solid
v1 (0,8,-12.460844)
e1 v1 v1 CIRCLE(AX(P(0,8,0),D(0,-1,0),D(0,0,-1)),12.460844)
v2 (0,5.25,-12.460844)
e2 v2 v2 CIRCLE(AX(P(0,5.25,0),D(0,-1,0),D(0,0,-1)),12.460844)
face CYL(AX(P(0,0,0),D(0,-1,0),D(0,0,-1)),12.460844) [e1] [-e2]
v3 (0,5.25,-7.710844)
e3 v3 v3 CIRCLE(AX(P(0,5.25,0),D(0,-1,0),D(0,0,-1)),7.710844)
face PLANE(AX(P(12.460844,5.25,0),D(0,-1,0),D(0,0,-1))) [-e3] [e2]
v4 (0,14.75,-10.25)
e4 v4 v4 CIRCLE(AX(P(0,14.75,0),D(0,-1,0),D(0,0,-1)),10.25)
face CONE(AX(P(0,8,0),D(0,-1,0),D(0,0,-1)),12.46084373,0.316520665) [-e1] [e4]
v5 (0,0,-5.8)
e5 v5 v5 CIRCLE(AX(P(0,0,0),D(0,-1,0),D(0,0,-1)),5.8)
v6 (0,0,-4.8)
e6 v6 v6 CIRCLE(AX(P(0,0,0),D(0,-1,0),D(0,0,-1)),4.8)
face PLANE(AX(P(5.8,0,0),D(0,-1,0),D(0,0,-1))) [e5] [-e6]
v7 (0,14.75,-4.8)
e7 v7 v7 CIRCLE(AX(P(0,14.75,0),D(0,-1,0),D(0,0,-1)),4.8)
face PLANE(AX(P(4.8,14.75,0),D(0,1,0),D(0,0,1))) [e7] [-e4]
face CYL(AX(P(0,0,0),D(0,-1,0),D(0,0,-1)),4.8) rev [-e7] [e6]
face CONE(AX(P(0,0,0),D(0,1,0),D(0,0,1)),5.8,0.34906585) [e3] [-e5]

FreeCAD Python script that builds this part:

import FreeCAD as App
import Part
import Sketcher
from FreeCAD import Vector
Q = App.Units.Quantity

doc = App.newDocument("Part")
body = doc.addObject("PartDesign::Body", "Body")

# Sketch on XY plane
sketch1 = doc.addObject("Sketcher::SketchObject", "Sketch")
body.addObject(sketch1)
sketch1.AttachmentSupport = (doc.XY_Plane, [""])
sketch1.MapMode = "FlatFace"
sketch1.addGeometry(Part.LineSegment(Vector(4.8, 14.75, 0), Vector(4.8, 0, 0)), False)
sketch1.addGeometry(Part.LineSegment(Vector(4.8, 0, 0), Vector(5.8, 0, 0)), False)
sketch1.addGeometry(Part.LineSegment(Vector(5.8, 0, 0), Vector(7.710844, 5.25, 0)), False)
sketch1.addGeometry(Part.LineSegment(Vector(7.710844, 5.25, 0), Vector(12.460844, 5.25, 0)), False)
sketch1.addGeometry(Part.LineSegment(Vector(12.460844, 5.25, 0), Vector(12.460844, 8, 0)), False)
sketch1.addGeometry(Part.LineSegment(Vector(12.460844, 8, 0), Vector(10.25, 14.75, 0)), False)
sketch1.addGeometry(Part.LineSegment(Vector(10.25, 14.75, 0), Vector(4.8, 14.75, 0)), False)
sketch1.addConstraint(Sketcher.Constraint("Coincident", 0, 2, 1, 1))
sketch1.addConstraint(Sketcher.Constraint("Coincident", 1, 2, 2, 1))
sketch1.addConstraint(Sketcher.Constraint("Coincident", 2, 2, 3, 1))
sketch1.addConstraint(Sketcher.Constraint("Coincident", 3, 2, 4, 1))
sketch1.addConstraint(Sketcher.Constraint("Coincident", 4, 2, 5, 1))
sketch1.addConstraint(Sketcher.Constraint("Coincident", 5, 2, 6, 1))
sketch1.addConstraint(Sketcher.Constraint("Coincident", 6, 2, 0, 1))
sketch1.addConstraint(Sketcher.Constraint("Vertical", 0))
sketch1.addConstraint(Sketcher.Constraint("Horizontal", 1))
sketch1.addConstraint(Sketcher.Constraint("Horizontal", 3))
sketch1.addConstraint(Sketcher.Constraint("Vertical", 4))
sketch1.addConstraint(Sketcher.Constraint("Horizontal", 6))
sketch1.addConstraint(Sketcher.Constraint("PointOnObject", 0, 2, -1))
sketch1.addConstraint(Sketcher.Constraint("DistanceX", 1, 1, 1, 2, 1.0))
sketch1.addConstraint(Sketcher.Constraint("Angle", 2, Q("70 deg")))
sketch1.addConstraint(Sketcher.Constraint("DistanceY", -1, 1, 4, 2, 8.0))
sketch1.addConstraint(Sketcher.Constraint("DistanceX", 3, 1, 3, 2, 4.75))
sketch1.addConstraint(Sketcher.Constraint("DistanceX", 6, 2, 6, 1, 5.45))
sketch1.addConstraint(Sketcher.Constraint("DistanceY", 0, 2, 0, 1, 14.75))
sketch1.addConstraint(Sketcher.Constraint("DistanceY", 4, 1, 4, 2, 2.75))
sketch1.addConstraint(Sketcher.Constraint("DistanceX", -1, 1, 0, 2, 4.8))
revolution = doc.addObject("PartDesign::Revolution", "Revolution")
body.addObject(revolution)
revolution.Profile = sketch1
revolution.ReferenceAxis = (sketch1, ["V_Axis"])
revolution.Angle = 360

doc.recompute()
